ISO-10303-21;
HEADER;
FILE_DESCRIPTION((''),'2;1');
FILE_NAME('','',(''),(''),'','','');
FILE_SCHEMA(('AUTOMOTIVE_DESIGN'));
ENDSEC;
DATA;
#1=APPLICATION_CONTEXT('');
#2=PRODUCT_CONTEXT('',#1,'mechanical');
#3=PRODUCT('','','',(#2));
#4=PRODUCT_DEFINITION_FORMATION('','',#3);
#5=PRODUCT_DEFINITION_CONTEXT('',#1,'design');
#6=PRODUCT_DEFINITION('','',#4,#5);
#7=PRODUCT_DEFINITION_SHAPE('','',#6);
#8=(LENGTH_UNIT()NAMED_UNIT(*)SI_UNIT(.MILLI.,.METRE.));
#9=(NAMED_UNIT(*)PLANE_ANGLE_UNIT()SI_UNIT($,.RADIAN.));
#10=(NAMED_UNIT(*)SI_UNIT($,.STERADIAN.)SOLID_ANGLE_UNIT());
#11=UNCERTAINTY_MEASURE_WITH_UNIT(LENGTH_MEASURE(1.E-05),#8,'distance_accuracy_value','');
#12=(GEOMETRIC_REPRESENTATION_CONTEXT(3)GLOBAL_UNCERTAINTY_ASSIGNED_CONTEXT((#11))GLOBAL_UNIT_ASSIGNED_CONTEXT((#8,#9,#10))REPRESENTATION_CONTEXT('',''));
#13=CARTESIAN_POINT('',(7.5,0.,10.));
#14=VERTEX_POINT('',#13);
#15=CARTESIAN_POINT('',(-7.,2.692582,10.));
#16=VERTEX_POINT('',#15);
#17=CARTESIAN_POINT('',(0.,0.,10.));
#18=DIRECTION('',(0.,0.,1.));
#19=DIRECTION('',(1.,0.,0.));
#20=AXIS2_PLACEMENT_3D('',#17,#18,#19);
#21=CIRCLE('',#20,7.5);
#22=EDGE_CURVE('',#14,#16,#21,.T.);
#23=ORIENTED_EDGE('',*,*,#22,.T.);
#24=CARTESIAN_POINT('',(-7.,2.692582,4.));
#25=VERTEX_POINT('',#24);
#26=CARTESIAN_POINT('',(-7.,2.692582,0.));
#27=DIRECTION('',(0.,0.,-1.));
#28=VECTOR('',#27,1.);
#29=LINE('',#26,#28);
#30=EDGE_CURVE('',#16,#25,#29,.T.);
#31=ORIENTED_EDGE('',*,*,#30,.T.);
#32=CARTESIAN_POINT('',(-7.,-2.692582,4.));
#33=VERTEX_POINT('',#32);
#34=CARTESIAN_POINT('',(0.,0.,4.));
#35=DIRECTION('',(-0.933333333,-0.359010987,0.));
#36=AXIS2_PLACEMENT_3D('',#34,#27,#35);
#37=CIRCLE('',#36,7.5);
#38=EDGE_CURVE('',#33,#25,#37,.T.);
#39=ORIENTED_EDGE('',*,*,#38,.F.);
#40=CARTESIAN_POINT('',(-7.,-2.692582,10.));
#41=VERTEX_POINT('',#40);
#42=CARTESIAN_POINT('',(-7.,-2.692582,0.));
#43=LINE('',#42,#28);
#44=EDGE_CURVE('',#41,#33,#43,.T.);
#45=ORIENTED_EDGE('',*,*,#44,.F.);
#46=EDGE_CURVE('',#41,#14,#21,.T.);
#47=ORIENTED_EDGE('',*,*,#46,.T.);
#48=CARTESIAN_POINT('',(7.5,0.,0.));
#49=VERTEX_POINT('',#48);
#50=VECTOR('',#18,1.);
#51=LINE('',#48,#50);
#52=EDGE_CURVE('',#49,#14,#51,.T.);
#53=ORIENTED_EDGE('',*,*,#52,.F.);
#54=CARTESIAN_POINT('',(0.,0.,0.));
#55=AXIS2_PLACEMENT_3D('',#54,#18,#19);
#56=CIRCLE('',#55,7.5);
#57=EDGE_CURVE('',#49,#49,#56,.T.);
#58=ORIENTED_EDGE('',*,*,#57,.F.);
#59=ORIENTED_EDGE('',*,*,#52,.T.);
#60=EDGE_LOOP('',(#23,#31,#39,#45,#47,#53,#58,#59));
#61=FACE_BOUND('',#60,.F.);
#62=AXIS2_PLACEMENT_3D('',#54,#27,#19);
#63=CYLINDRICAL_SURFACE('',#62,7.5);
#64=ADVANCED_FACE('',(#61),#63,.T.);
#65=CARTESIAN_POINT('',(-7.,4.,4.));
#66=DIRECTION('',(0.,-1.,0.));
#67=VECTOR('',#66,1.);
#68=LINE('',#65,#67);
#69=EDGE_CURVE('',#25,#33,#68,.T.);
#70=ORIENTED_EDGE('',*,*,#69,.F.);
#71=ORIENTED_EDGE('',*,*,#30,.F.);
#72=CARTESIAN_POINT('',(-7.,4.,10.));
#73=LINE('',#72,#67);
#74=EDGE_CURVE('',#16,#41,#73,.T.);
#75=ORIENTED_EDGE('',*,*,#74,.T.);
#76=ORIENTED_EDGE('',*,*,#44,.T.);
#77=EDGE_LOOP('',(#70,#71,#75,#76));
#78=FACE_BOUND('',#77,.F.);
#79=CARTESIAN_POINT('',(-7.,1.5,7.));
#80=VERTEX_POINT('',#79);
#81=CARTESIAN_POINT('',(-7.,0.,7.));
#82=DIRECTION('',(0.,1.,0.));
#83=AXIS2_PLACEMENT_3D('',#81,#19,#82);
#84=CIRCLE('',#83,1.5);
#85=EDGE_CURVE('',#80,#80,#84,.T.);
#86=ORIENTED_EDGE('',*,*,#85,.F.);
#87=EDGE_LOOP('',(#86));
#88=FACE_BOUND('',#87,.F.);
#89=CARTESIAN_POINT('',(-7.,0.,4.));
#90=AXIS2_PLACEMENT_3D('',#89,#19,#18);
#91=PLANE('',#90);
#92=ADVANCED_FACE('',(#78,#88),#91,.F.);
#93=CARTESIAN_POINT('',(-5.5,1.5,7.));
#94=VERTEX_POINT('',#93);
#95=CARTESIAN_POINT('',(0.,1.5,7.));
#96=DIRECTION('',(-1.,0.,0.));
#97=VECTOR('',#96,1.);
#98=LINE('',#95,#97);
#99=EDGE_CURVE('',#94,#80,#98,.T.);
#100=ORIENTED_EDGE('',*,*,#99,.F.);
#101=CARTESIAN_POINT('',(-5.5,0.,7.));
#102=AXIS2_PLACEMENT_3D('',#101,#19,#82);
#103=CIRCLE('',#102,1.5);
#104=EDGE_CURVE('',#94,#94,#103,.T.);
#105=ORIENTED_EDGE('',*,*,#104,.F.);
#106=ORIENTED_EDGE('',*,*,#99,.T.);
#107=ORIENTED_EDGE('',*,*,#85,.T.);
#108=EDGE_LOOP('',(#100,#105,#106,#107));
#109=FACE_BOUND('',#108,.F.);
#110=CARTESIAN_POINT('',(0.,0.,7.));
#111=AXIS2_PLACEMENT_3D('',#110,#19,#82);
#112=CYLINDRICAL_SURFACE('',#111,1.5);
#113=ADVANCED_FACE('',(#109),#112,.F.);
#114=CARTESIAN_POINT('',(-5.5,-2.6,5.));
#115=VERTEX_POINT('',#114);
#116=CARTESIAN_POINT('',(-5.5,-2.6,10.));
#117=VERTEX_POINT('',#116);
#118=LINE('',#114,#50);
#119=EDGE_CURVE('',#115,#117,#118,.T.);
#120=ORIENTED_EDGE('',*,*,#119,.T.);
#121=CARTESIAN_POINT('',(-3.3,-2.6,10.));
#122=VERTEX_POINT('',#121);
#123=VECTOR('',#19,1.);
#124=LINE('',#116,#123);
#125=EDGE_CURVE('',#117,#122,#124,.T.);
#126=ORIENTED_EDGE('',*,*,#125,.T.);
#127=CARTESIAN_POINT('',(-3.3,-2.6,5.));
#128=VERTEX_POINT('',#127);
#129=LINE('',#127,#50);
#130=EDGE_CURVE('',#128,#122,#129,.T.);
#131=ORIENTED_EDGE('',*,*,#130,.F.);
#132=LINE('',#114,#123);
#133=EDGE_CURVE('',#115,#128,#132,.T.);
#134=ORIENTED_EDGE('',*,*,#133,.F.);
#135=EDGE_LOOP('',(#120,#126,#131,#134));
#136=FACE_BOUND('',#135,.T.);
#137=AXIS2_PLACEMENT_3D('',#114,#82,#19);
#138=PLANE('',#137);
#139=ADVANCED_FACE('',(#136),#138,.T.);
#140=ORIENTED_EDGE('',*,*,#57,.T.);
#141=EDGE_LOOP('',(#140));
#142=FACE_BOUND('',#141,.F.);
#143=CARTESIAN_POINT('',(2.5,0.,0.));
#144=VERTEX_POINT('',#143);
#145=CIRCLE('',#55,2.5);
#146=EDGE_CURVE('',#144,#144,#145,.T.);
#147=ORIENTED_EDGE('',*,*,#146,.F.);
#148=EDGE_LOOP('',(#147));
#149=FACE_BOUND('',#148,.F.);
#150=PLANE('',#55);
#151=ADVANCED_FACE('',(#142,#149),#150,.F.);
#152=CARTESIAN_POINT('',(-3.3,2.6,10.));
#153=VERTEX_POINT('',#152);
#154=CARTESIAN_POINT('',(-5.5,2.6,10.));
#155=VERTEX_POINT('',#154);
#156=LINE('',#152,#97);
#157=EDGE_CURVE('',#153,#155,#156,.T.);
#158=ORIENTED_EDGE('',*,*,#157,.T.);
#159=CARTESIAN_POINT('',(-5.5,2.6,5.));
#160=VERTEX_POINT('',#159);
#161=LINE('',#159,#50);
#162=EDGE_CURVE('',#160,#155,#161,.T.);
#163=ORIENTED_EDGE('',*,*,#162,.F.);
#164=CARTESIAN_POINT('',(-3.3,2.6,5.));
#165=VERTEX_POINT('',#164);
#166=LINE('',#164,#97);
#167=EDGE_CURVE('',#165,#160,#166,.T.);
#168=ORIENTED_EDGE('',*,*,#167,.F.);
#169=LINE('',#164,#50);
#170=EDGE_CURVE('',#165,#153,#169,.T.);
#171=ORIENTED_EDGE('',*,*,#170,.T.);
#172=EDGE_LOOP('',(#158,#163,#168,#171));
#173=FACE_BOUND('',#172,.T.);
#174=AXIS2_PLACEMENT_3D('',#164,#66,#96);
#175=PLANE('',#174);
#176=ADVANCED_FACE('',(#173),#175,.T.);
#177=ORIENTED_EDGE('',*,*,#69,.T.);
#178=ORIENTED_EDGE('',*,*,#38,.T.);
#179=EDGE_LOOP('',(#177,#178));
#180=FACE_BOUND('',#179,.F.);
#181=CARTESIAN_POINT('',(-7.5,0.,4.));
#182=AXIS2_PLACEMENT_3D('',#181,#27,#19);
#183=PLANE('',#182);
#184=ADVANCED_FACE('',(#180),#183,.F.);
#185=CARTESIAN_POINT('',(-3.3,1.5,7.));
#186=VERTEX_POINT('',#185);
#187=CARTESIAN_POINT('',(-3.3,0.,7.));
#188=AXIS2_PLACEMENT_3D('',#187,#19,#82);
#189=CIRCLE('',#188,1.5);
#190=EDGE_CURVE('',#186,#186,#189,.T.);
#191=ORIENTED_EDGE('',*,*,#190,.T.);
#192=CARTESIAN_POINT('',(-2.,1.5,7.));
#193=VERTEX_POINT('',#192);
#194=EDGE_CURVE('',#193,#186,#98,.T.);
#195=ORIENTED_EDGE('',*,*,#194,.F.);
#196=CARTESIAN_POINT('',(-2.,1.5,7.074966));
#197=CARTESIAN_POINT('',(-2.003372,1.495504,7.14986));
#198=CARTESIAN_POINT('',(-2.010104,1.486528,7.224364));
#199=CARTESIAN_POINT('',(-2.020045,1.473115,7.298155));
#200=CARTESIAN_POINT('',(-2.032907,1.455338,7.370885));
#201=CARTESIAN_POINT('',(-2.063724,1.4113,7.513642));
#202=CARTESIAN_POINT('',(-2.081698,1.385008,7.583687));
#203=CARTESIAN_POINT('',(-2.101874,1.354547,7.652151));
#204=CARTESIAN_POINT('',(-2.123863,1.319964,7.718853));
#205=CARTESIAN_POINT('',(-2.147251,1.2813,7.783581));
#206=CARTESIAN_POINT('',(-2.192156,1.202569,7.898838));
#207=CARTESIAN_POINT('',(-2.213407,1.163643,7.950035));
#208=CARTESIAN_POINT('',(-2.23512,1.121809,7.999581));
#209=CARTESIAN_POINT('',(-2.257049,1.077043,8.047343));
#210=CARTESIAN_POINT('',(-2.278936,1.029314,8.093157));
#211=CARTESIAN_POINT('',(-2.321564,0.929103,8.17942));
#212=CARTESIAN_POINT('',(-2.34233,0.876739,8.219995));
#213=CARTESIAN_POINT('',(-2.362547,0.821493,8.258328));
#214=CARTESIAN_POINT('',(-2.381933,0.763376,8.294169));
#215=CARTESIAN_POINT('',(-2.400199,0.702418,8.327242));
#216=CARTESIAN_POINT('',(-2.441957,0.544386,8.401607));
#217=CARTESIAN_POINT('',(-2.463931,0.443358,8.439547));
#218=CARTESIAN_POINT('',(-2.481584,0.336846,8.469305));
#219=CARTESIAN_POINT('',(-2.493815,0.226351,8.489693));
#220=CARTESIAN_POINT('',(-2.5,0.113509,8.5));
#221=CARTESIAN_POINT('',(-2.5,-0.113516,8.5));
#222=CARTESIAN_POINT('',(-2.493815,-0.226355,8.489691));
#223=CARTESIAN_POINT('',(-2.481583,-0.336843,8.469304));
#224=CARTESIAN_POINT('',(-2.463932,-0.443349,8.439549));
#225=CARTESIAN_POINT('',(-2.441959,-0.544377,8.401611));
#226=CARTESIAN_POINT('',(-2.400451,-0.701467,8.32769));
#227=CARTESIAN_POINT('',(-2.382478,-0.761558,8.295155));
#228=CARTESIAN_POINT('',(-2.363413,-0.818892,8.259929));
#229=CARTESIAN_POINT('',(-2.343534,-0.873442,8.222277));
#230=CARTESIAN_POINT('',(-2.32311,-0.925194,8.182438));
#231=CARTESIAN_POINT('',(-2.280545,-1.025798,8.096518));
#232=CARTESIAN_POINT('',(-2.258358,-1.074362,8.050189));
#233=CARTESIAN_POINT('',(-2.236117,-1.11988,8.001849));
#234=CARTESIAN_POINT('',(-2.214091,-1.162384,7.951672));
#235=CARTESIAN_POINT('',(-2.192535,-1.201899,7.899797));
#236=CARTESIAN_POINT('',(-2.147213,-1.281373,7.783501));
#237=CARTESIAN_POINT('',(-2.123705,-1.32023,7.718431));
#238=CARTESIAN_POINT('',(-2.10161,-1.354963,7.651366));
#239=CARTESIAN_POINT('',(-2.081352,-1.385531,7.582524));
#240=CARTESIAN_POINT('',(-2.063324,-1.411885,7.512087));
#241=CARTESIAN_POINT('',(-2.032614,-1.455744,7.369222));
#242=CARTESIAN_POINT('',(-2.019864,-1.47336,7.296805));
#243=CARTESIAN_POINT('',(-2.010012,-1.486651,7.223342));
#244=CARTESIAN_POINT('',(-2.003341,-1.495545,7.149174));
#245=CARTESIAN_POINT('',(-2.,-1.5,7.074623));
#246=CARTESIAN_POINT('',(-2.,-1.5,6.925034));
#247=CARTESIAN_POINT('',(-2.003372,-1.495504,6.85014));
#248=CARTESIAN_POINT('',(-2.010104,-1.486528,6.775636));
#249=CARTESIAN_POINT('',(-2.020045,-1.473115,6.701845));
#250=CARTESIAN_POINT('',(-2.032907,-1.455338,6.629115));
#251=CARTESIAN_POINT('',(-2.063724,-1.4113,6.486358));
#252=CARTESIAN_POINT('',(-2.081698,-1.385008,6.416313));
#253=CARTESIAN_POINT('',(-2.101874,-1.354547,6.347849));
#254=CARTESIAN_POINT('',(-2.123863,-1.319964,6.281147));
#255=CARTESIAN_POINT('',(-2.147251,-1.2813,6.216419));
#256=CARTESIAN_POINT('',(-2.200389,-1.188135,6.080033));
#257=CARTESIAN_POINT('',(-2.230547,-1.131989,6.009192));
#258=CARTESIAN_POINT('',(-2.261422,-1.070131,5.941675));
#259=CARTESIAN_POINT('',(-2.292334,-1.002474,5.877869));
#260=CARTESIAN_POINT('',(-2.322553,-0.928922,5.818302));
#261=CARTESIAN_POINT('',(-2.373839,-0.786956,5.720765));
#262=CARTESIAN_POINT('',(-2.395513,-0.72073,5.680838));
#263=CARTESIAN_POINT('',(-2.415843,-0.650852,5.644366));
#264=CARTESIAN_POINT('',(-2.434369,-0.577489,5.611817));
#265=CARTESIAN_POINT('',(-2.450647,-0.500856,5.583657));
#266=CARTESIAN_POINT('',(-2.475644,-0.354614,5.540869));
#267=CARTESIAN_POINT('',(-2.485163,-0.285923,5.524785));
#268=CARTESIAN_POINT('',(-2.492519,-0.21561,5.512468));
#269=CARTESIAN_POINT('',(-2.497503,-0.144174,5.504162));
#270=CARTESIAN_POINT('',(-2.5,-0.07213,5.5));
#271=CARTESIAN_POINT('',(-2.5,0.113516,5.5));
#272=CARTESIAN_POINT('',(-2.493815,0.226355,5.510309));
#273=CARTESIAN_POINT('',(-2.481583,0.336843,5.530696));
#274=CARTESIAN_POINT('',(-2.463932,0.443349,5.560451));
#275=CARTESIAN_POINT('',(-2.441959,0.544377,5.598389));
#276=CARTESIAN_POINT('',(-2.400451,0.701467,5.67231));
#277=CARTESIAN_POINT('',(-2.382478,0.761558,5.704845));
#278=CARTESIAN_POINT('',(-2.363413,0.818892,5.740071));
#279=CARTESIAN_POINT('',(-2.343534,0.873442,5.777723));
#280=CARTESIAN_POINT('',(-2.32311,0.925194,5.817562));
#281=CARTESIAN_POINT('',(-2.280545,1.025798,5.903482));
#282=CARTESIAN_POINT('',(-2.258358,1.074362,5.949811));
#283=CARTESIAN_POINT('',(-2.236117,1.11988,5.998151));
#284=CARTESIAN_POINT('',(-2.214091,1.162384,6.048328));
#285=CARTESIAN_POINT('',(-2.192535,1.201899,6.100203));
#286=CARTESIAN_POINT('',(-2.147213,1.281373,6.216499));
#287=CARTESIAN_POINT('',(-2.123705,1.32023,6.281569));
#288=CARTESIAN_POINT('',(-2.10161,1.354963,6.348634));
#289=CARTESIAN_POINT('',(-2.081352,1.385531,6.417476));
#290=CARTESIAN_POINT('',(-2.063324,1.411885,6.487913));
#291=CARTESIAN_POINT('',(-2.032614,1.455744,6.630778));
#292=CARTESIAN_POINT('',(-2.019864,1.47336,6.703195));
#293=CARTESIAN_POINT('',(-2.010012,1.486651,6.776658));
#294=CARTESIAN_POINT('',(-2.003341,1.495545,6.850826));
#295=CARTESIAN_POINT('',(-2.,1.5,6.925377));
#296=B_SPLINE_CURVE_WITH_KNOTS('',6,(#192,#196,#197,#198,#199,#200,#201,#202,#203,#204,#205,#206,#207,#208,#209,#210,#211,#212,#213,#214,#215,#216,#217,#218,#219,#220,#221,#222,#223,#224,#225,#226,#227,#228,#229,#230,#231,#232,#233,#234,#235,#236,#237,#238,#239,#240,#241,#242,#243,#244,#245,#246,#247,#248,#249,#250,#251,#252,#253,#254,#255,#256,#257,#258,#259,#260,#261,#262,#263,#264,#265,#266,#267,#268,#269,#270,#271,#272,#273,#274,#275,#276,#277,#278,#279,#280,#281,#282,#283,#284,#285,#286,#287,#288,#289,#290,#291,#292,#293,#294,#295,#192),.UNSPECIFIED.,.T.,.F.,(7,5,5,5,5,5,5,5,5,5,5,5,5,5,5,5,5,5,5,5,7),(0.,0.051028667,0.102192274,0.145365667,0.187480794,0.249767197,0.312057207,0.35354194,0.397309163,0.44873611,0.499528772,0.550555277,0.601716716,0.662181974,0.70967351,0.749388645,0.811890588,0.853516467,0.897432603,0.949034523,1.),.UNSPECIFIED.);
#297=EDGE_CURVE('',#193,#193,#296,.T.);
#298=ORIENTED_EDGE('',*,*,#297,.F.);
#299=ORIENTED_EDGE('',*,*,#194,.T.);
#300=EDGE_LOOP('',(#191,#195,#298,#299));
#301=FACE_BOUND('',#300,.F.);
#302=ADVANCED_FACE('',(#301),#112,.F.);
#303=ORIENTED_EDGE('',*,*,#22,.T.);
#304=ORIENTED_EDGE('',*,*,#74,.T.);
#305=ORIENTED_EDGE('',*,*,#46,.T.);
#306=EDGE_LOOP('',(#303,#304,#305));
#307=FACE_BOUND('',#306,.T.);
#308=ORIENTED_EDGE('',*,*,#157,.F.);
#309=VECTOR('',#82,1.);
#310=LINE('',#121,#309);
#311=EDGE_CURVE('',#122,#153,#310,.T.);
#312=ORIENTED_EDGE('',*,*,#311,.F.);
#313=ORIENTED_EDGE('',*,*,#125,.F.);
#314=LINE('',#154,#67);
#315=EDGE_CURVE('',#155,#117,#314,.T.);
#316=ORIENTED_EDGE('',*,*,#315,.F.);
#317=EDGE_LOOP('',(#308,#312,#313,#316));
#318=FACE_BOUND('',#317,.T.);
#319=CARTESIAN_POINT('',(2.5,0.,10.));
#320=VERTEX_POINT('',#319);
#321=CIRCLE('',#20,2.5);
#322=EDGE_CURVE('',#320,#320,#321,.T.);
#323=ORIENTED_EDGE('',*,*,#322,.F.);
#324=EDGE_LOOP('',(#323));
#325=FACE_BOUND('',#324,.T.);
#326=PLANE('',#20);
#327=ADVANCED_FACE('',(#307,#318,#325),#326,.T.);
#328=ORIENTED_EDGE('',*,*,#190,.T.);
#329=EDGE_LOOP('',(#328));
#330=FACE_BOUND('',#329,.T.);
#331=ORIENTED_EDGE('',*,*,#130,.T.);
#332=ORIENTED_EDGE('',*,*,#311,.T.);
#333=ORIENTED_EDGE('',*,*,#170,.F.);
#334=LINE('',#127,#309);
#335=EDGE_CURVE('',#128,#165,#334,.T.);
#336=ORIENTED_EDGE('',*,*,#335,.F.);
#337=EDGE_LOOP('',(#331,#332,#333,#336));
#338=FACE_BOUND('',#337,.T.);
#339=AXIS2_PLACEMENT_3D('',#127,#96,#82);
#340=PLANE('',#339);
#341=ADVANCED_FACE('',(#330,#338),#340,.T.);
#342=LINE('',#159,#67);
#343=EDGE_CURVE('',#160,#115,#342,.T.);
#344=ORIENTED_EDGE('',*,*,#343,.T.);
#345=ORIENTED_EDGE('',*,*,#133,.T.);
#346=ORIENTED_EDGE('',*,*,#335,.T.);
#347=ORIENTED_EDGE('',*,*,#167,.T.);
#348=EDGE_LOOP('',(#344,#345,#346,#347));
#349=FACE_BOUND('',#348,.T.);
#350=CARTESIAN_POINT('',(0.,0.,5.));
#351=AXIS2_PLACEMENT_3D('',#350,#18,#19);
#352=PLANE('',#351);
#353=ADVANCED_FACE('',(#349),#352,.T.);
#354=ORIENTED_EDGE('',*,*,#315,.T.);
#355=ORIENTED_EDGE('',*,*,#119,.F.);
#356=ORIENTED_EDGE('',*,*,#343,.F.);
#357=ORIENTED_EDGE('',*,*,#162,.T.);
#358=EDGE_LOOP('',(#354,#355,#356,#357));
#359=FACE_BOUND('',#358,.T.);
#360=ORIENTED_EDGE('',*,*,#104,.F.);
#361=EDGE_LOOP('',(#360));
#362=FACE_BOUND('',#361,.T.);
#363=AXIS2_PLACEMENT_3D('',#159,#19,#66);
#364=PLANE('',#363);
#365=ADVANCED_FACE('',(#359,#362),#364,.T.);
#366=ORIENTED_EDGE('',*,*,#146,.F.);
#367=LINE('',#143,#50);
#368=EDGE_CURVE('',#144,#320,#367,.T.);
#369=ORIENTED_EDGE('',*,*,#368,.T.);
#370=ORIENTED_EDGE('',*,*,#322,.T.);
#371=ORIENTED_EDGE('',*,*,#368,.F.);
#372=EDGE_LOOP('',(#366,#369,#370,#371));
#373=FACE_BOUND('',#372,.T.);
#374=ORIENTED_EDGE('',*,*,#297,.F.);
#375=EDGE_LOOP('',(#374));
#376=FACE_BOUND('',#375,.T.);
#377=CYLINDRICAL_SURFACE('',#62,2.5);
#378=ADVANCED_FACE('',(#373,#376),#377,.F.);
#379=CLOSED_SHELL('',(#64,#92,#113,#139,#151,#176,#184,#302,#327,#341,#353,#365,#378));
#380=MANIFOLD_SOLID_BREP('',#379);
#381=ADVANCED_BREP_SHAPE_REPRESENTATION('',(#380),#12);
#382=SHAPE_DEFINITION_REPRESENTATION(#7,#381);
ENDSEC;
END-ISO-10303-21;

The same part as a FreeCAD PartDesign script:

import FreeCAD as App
import Part
import Sketcher
Q = App.Units.Quantity


def add_polygon(sketch, points):
    """Adds a closed chain of lines whose ends are joined by coincident constraints."""
    first, n = sketch.GeometryCount, len(points)
    for a, b in zip(points, points[1:] + points[:1]):
        sketch.addGeometry(Part.LineSegment(App.Vector(*a, 0), App.Vector(*b, 0)), False)
    for i in range(n):
        sketch.addConstraint(Sketcher.Constraint("Coincident", first + i, 2, first + (i + 1) % n, 1))

doc = App.newDocument("Part")
params = doc.addObject("Spreadsheet::Sheet", "Params")
for row, (alias, value) in enumerate([
    ("sketch1_diameter", "15 mm"),
    ("sketch1_diameter2", "5 mm"),
    ("pad1_length", "10 mm"),
    ("sketch2_width", "2.2 mm"),
    ("sketch2_height", "5.2 mm"),
    ("pocket1_length", "5 mm"),
    ("sketch3_diameter", "3 mm"),
    ("pocket2_length", "8 mm"),
    ("sketch4_height", "6 mm"),
    ("sketch4_width", "0.5 mm"),
    ("pocket3_length", "8 mm"),
], start=1):
    params.set(f"A{row}", alias)
    params.set(f"B{row}", "=" + value)
    params.setAlias(f"B{row}", alias)

body = doc.addObject("PartDesign::Body", "Body")

sketch1 = body.newObject("Sketcher::SketchObject", "Sketch")
sketch1.AttachmentSupport = (doc.getObject("XY_Plane"), [""])
sketch1.MapMode = "FlatFace"
sketch1.addGeometry(Part.Circle(App.Vector(0, 0, 0), App.Vector(0, 0, 1), 7.5), False)
sketch1.addGeometry(Part.Circle(App.Vector(0, 0, 0), App.Vector(0, 0, 1), 2.5), False)
sketch1.addConstraint(Sketcher.Constraint("Coincident", 0, 3, -1, 1))
sketch1.addConstraint(Sketcher.Constraint("Coincident", 1, 3, -1, 1))
sketch1.addConstraint(Sketcher.Constraint("Diameter", 0, Q("15 mm")))
sketch1.addConstraint(Sketcher.Constraint("Diameter", 1, Q("5 mm")))
sketch1.setExpression("Constraints[2]", "Params.sketch1_diameter")
sketch1.setExpression("Constraints[3]", "Params.sketch1_diameter2")
pad1 = body.newObject("PartDesign::Pad", "Pad")
pad1.Profile = sketch1
pad1.setExpression("Length", "Params.pad1_length")

sketch2 = body.newObject("Sketcher::SketchObject", "Sketch001")
sketch2.AttachmentSupport = (doc.getObject("XY_Plane"), [""])
sketch2.MapMode = "FlatFace"
sketch2.AttachmentOffset = App.Placement(App.Vector(0, 0, 5), App.Rotation())
add_polygon(sketch2, [(-5.5, 2.6), (-5.5, -2.6), (-3.3, -2.6), (-3.3, 2.6)])
sketch2.addConstraint(Sketcher.Constraint("Vertical", 0))
sketch2.addConstraint(Sketcher.Constraint("Horizontal", 1))
sketch2.addConstraint(Sketcher.Constraint("Vertical", 2))
sketch2.addConstraint(Sketcher.Constraint("Horizontal", 3))
sketch2.addConstraint(Sketcher.Constraint("DistanceX", 1, 1, 1, 2, Q("2.2 mm")))
sketch2.addConstraint(Sketcher.Constraint("DistanceY", 0, 2, 0, 1, Q("5.2 mm")))
sketch2.addConstraint(Sketcher.Constraint("DistanceX", 0, 2, -1, 1, Q("5.5 mm")))
sketch2.addConstraint(Sketcher.Constraint("DistanceY", 0, 2, -1, 1, Q("2.6 mm")))
sketch2.setExpression("Constraints[8]", "Params.sketch2_width")
sketch2.setExpression("Constraints[9]", "Params.sketch2_height")
pocket1 = body.newObject("PartDesign::Pocket", "Pocket")
pocket1.Profile = sketch2
pocket1.setExpression("Length", "Params.pocket1_length")
pocket1.Reversed = True

sketch3 = body.newObject("Sketcher::SketchObject", "Sketch002")
sketch3.AttachmentSupport = (doc.getObject("YZ_Plane"), [""])
sketch3.MapMode = "FlatFace"
sketch3.addGeometry(Part.Circle(App.Vector(0, 7, 0), App.Vector(0, 0, 1), 1.5), False)
sketch3.addConstraint(Sketcher.Constraint("PointOnObject", 0, 3, -2))
sketch3.addConstraint(Sketcher.Constraint("Diameter", 0, Q("3 mm")))
sketch3.addConstraint(Sketcher.Constraint("DistanceY", -1, 1, 0, 3, Q("7 mm")))
sketch3.setExpression("Constraints[1]", "Params.sketch3_diameter")
pocket2 = body.newObject("PartDesign::Pocket", "Pocket001")
pocket2.Profile = sketch3
pocket2.setExpression("Length", "Params.pocket2_length")

sketch4 = body.newObject("Sketcher::SketchObject", "Sketch003")
sketch4.AttachmentSupport = (doc.getObject("XZ_Plane"), [""])
sketch4.MapMode = "FlatFace"
add_polygon(sketch4, [(-7, 4), (-7.5, 4), (-7.5, 10), (-7, 10)])
sketch4.addConstraint(Sketcher.Constraint("Horizontal", 0))
sketch4.addConstraint(Sketcher.Constraint("Vertical", 1))
sketch4.addConstraint(Sketcher.Constraint("Horizontal", 2))
sketch4.addConstraint(Sketcher.Constraint("Vertical", 3))
sketch4.addConstraint(Sketcher.Constraint("DistanceY", 1, 1, 1, 2, Q("6 mm")))
sketch4.addConstraint(Sketcher.Constraint("DistanceX", 0, 2, 0, 1, Q("0.5 mm")))
sketch4.addConstraint(Sketcher.Constraint("DistanceY", -1, 1, 1, 2, Q("10 mm")))
sketch4.addConstraint(Sketcher.Constraint("DistanceX", 2, 2, -1, 1, Q("7 mm")))
sketch4.setExpression("Constraints[8]", "Params.sketch4_height")
sketch4.setExpression("Constraints[9]", "Params.sketch4_width")
pocket3 = body.newObject("PartDesign::Pocket", "Pocket002")
pocket3.Profile = sketch4
pocket3.setExpression("Length", "Params.pocket3_length")
pocket3.Midplane = True

doc.recompute()
